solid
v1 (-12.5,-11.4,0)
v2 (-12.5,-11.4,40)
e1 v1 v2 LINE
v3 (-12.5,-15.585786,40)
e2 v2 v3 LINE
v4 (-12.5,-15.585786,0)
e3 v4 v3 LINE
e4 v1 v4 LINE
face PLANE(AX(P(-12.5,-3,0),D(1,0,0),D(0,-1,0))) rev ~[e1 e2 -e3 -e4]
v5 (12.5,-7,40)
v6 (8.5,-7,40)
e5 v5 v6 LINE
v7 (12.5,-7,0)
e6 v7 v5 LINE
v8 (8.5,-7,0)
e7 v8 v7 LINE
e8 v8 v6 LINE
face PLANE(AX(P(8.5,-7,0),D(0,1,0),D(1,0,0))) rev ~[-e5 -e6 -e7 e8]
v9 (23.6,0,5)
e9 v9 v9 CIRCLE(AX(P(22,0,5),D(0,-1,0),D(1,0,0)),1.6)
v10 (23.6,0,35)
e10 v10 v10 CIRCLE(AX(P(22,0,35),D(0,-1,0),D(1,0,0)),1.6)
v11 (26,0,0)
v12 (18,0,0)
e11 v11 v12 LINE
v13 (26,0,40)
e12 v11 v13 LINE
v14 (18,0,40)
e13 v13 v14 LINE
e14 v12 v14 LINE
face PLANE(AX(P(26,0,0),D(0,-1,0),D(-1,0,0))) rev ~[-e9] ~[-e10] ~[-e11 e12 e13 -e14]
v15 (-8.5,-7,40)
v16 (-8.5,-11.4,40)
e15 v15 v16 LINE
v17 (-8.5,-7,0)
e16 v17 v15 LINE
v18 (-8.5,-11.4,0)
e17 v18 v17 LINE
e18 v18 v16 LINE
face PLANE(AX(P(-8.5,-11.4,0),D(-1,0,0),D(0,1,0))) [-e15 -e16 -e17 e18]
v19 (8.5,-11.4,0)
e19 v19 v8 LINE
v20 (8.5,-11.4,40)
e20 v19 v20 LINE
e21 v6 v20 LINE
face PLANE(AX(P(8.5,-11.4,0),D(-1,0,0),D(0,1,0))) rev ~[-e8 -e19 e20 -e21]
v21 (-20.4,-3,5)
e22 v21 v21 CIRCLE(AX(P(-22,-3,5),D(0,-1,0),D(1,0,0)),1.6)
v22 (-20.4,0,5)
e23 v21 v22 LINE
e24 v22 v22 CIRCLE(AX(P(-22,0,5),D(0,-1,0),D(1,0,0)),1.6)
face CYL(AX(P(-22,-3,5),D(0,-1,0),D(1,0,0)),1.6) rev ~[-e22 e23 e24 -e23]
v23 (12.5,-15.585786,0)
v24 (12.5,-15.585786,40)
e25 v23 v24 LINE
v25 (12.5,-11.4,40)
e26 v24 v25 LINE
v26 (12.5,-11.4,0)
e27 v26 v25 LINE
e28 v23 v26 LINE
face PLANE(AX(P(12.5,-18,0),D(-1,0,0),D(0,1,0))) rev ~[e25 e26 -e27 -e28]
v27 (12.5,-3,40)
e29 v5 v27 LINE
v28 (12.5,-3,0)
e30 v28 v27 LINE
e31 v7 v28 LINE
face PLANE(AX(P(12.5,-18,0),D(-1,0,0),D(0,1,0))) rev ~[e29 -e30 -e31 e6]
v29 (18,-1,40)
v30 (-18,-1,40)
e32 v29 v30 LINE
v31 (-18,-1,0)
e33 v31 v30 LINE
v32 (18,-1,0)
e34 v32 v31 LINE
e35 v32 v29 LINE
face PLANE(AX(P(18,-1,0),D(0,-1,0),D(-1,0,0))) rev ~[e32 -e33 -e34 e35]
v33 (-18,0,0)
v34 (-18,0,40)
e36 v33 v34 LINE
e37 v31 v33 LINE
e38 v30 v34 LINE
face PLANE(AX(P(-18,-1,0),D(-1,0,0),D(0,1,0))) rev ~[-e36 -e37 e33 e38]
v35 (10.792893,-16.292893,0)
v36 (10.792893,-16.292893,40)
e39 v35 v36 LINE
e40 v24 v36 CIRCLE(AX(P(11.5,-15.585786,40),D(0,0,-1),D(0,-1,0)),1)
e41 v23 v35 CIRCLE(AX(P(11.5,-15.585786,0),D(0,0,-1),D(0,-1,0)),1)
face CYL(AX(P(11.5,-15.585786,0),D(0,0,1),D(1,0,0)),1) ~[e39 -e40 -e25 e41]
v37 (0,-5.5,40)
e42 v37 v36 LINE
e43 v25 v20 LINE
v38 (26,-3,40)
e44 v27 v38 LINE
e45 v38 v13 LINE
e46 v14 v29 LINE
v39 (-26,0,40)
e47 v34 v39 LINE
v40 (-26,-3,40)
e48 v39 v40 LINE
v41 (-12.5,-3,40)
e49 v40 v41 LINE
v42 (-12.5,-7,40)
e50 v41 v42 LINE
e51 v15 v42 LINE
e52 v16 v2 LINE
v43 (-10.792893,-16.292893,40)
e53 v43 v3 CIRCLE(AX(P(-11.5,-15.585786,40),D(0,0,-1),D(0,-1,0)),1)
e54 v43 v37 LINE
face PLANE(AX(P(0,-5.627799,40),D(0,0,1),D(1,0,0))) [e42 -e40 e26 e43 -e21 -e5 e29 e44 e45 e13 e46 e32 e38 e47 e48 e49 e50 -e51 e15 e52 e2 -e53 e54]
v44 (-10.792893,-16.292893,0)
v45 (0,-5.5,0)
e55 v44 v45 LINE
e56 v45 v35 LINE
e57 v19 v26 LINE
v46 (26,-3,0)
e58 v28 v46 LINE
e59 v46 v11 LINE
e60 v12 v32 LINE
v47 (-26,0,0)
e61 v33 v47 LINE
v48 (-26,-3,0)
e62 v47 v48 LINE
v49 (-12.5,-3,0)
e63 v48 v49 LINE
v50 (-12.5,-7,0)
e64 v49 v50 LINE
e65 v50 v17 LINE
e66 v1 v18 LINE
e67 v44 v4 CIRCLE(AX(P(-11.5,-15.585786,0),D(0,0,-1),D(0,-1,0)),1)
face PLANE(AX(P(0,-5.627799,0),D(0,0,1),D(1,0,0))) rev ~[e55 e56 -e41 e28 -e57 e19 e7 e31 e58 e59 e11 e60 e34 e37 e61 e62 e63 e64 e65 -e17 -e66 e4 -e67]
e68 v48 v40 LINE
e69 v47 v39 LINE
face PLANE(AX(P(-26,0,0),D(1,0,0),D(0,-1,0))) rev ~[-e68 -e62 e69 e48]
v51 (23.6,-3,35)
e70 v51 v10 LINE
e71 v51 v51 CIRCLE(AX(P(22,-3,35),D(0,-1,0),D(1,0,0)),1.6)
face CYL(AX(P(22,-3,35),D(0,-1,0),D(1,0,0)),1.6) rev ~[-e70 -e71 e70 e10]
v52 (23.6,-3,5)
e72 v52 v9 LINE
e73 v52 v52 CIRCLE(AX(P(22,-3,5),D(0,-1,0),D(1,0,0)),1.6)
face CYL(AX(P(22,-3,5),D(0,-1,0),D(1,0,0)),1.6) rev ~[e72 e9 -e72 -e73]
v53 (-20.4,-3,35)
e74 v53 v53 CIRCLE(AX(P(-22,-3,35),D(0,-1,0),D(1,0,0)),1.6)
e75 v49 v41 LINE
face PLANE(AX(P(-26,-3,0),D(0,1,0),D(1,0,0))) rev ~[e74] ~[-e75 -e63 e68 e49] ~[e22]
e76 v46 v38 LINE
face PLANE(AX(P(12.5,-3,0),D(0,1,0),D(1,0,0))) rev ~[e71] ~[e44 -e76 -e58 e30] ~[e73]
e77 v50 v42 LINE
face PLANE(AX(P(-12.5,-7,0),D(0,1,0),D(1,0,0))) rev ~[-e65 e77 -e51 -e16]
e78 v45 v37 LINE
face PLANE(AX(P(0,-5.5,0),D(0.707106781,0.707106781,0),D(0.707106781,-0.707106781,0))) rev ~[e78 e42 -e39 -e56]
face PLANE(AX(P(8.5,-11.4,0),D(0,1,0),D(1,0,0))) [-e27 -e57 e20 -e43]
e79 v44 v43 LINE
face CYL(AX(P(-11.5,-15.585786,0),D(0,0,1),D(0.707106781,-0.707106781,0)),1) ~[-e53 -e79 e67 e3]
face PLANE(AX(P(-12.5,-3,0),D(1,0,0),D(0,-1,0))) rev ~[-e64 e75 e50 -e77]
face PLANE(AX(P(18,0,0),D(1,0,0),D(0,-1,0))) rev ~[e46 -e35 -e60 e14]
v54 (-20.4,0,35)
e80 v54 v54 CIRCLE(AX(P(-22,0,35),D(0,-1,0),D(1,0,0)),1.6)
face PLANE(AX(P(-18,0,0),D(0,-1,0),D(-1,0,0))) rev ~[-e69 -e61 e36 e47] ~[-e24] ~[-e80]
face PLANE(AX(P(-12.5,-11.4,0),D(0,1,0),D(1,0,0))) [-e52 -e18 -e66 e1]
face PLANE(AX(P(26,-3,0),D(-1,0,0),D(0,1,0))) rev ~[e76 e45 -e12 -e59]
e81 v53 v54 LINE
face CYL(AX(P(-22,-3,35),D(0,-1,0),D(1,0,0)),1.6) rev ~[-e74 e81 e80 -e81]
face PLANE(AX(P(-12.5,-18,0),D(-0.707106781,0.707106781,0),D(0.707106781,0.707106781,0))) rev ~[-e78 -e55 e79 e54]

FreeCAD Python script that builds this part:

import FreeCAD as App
import Part
import Sketcher
Q = App.Units.Quantity


def edges_at(feature, points):
    """Names of the edges that pass closest to the given points."""
    edges = feature.Shape.Edges
    near = lambda p: min(range(len(edges)), key=lambda i: edges[i].distToShape(Part.Vertex(*p))[0])
    return sorted({f"Edge{near(p) + 1}" for p in points})

doc = App.newDocument("Part")
body = doc.addObject("PartDesign::Body", "Body")

sketch1 = doc.addObject("Sketcher::SketchObject", "Sketch")
body.addObject(sketch1)
sketch1.AttachmentSupport = (doc.XY_Plane, [""])
sketch1.MapMode = "FlatFace"
sketch1.addGeometry([
    Part.LineSegment(App.Vector(-12.5, -3, 0), App.Vector(-12.5, -18, 0)),
    Part.LineSegment(App.Vector(-12.5, -18, 0), App.Vector(0, -5.5, 0)),
    Part.LineSegment(App.Vector(0, -5.5, 0), App.Vector(12.5, -18, 0)),
    Part.LineSegment(App.Vector(12.5, -18, 0), App.Vector(12.5, -3, 0)),
    Part.LineSegment(App.Vector(12.5, -3, 0), App.Vector(26, -3, 0)),
    Part.LineSegment(App.Vector(26, -3, 0), App.Vector(26, 0, 0)),
    Part.LineSegment(App.Vector(26, 0, 0), App.Vector(18, 0, 0)),
    Part.LineSegment(App.Vector(18, 0, 0), App.Vector(18, -1, 0)),
    Part.LineSegment(App.Vector(18, -1, 0), App.Vector(-18, -1, 0)),
    Part.LineSegment(App.Vector(-18, -1, 0), App.Vector(-18, 0, 0)),
    Part.LineSegment(App.Vector(-18, 0, 0), App.Vector(-26, 0, 0)),
    Part.LineSegment(App.Vector(-26, 0, 0), App.Vector(-26, -3, 0)),
    Part.LineSegment(App.Vector(-26, -3, 0), App.Vector(-12.5, -3, 0)),
], False)
sketch1.addConstraint([
    Sketcher.Constraint("Coincident", 0, 2, 1, 1),
    Sketcher.Constraint("Coincident", 1, 2, 2, 1),
    Sketcher.Constraint("Coincident", 2, 2, 3, 1),
    Sketcher.Constraint("Coincident", 3, 2, 4, 1),
    Sketcher.Constraint("Coincident", 4, 2, 5, 1),
    Sketcher.Constraint("Coincident", 5, 2, 6, 1),
    Sketcher.Constraint("Coincident", 6, 2, 7, 1),
    Sketcher.Constraint("Coincident", 7, 2, 8, 1),
    Sketcher.Constraint("Coincident", 8, 2, 9, 1),
    Sketcher.Constraint("Coincident", 9, 2, 10, 1),
    Sketcher.Constraint("Coincident", 10, 2, 11, 1),
    Sketcher.Constraint("Coincident", 11, 2, 12, 1),
    Sketcher.Constraint("Coincident", 12, 2, 0, 1),
    Sketcher.Constraint("Vertical", 0),
    Sketcher.Constraint("Vertical", 3),
    Sketcher.Constraint("Horizontal", 4),
    Sketcher.Constraint("Vertical", 5),
    Sketcher.Constraint("Horizontal", 6),
    Sketcher.Constraint("Vertical", 7),
    Sketcher.Constraint("Horizontal", 8),
    Sketcher.Constraint("Vertical", 9),
    Sketcher.Constraint("Horizontal", 10),
    Sketcher.Constraint("Vertical", 11),
    Sketcher.Constraint("Horizontal", 12),
    Sketcher.Constraint("Symmetric", 6, 2, 9, 2, -1, 1),
    Sketcher.Constraint("Symmetric", 0, 2, 2, 2, -2),
    Sketcher.Constraint("Symmetric", 5, 2, 10, 2, -2),
    Sketcher.Constraint("PointOnObject", 1, 2, -2),
    Sketcher.Constraint("Perpendicular", 1, 2),
    Sketcher.Constraint("Horizontal", 4, 2, 11, 2),
    Sketcher.Constraint("DistanceX", 6, 2, 6, 1, Q("8 mm")),
    Sketcher.Constraint("DistanceX", 8, 2, 8, 1, Q("36 mm")),
    Sketcher.Constraint("DistanceY", 0, 2, 0, 1, Q("15 mm")),
    Sketcher.Constraint("DistanceY", 5, 1, 5, 2, Q("3 mm")),
    Sketcher.Constraint("DistanceY", 7, 2, 7, 1, Q("1 mm")),
    Sketcher.Constraint("DistanceX", 4, 1, 4, 2, Q("13.5 mm")),
])
pad1 = doc.addObject("PartDesign::Pad", "Pad")
body.addObject(pad1)
pad1.Profile = sketch1
pad1.Length = 40

sketch2 = doc.addObject("Sketcher::SketchObject", "Sketch001")
body.addObject(sketch2)
sketch2.AttachmentSupport = (doc.XY_Plane, [""])
sketch2.MapMode = "FlatFace"
sketch2.addGeometry([
    Part.LineSegment(App.Vector(-12.5, -7, 0), App.Vector(-12.5, -11.4, 0)),
    Part.LineSegment(App.Vector(-12.5, -11.4, 0), App.Vector(-8.5, -11.4, 0)),
    Part.LineSegment(App.Vector(-8.5, -11.4, 0), App.Vector(-8.5, -7, 0)),
    Part.LineSegment(App.Vector(-8.5, -7, 0), App.Vector(-12.5, -7, 0)),
    Part.LineSegment(App.Vector(8.5, -7, 0), App.Vector(8.5, -11.4, 0)),
    Part.LineSegment(App.Vector(8.5, -11.4, 0), App.Vector(12.5, -11.4, 0)),
    Part.LineSegment(App.Vector(12.5, -11.4, 0), App.Vector(12.5, -7, 0)),
    Part.LineSegment(App.Vector(12.5, -7, 0), App.Vector(8.5, -7, 0)),
], False)
sketch2.addConstraint([
    Sketcher.Constraint("Coincident", 0, 2, 1, 1),
    Sketcher.Constraint("Coincident", 1, 2, 2, 1),
    Sketcher.Constraint("Coincident", 2, 2, 3, 1),
    Sketcher.Constraint("Coincident", 3, 2, 0, 1),
    Sketcher.Constraint("Coincident", 4, 2, 5, 1),
    Sketcher.Constraint("Coincident", 5, 2, 6, 1),
    Sketcher.Constraint("Coincident", 6, 2, 7, 1),
    Sketcher.Constraint("Coincident", 7, 2, 4, 1),
    Sketcher.Constraint("Vertical", 0),
    Sketcher.Constraint("Horizontal", 1),
    Sketcher.Constraint("Vertical", 2),
    Sketcher.Constraint("Horizontal", 3),
    Sketcher.Constraint("Vertical", 4),
    Sketcher.Constraint("Horizontal", 5),
    Sketcher.Constraint("Vertical", 6),
    Sketcher.Constraint("Horizontal", 7),
    Sketcher.Constraint("Symmetric", 1, 2, 4, 2, -2),
    Sketcher.Constraint("Symmetric", 3, 2, 6, 2, -2),
    Sketcher.Constraint("DistanceX", 1, 1, 1, 2, Q("4 mm")),
    Sketcher.Constraint("DistanceY", 0, 2, 0, 1, Q("4.4 mm")),
    Sketcher.Constraint("DistanceY", 2, 2, -1, 1, Q("7 mm")),
    Sketcher.Constraint("DistanceX", 1, 2, 4, 2, Q("17 mm")),
])
pocket1 = doc.addObject("PartDesign::Pocket", "Pocket")
body.addObject(pocket1)
pocket1.Profile = sketch2
pocket1.Type = "ThroughAll"
pocket1.Midplane = True
doc.recompute()

fillet = doc.addObject("PartDesign::Fillet", "Fillet")
body.addObject(fillet)
fillet.Base = (pocket1, edges_at(pocket1, [(-12.5, -18, 20), (12.5, -18, 20)]))
fillet.Radius = 1

sketch3 = doc.addObject("Sketcher::SketchObject", "Sketch002")
body.addObject(sketch3)
sketch3.AttachmentSupport = (doc.XZ_Plane, [""])
sketch3.MapMode = "FlatFace"
sketch3.AttachmentOffset = App.Placement(App.Vector(0, 0, 3), App.Rotation())
sketch3.addGeometry([
    Part.Circle(App.Vector(-22, 5, 0), App.Vector(0, 0, 1), 1.6),
    Part.Circle(App.Vector(-22, 35, 0), App.Vector(0, 0, 1), 1.6),
    Part.Circle(App.Vector(22, 35, 0), App.Vector(0, 0, 1), 1.6),
    Part.Circle(App.Vector(22, 5, 0), App.Vector(0, 0, 1), 1.6),
], False)
sketch3.addConstraint([
    Sketcher.Constraint("Equal", 0, 1),
    Sketcher.Constraint("Equal", 1, 2),
    Sketcher.Constraint("Equal", 2, 3),
    Sketcher.Constraint("Symmetric", 1, 3, 2, 3, -2),
    Sketcher.Constraint("Symmetric", 0, 3, 3, 3, -2),
    Sketcher.Constraint("Vertical", 0, 3, 1, 3),
    Sketcher.Constraint("Diameter", 0, Q("3.2 mm")),
    Sketcher.Constraint("DistanceX", 0, 3, -1, 1, Q("22 mm")),
    Sketcher.Constraint("DistanceY", -1, 1, 0, 3, Q("5 mm")),
    Sketcher.Constraint("DistanceY", -1, 1, 1, 3, Q("35 mm")),
])
pocket2 = doc.addObject("PartDesign::Pocket", "Pocket001")
body.addObject(pocket2)
pocket2.Profile = sketch3
pocket2.Type = "ThroughAll"

doc.recompute()
